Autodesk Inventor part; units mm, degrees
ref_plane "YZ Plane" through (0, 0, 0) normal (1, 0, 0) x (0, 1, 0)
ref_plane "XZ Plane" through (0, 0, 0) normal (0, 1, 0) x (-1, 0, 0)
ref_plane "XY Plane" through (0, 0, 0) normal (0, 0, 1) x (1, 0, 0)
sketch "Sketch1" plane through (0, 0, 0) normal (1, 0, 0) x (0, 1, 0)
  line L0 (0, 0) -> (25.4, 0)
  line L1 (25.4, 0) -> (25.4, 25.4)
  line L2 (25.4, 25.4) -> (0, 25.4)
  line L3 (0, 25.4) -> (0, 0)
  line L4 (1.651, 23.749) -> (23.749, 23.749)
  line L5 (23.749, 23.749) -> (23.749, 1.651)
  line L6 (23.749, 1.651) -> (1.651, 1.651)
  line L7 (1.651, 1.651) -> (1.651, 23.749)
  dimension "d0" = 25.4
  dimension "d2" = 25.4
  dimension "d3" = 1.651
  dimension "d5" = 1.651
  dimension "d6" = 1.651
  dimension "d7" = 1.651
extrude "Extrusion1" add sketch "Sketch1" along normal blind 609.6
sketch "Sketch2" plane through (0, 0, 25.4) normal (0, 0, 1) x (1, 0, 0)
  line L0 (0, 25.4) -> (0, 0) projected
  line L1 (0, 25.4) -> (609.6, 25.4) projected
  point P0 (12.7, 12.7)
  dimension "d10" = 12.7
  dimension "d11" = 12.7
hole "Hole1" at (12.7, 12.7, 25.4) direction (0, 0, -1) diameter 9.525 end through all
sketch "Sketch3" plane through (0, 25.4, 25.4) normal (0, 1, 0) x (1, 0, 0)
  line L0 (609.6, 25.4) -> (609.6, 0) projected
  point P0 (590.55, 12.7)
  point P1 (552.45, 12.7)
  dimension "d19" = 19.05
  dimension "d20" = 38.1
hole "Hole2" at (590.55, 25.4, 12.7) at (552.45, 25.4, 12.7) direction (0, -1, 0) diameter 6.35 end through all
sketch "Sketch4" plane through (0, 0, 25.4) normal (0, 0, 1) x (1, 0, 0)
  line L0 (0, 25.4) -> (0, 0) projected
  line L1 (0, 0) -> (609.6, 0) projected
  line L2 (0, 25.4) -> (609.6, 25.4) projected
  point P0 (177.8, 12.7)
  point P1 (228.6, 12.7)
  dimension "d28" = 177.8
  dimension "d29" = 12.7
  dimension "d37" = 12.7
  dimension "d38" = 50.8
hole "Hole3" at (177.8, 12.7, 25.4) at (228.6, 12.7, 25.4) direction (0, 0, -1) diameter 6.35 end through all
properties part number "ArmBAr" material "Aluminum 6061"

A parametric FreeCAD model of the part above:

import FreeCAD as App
import Part
import Sketcher
from FreeCAD import Vector
Q = App.Units.Quantity

doc = App.newDocument("Part")
params = doc.addObject("Spreadsheet::Sheet", "Params")
for row, (alias, value) in enumerate([
    ("sketch1_width", "1 in"),
    ("pad1_length", "24 in"),
    ("sketch2_diameter", "0.375 in"),
    ("hole_diameter", "0.375 in"),
    ("sketch3_diameter", "0.25 in"),
    ("hole2_diameter", "0.25 in"),
    ("sketch4_diameter", "0.25 in"),
    ("hole3_diameter", "0.25 in"),
], start=1):
    params.set(f"A{row}", alias)
    params.set(f"B{row}", "=" + value)
    params.setAlias(f"B{row}", alias)

body = doc.addObject("PartDesign::Body", "Body")

# Sketch on YZ plane
sketch1 = doc.addObject("Sketcher::SketchObject", "Sketch")
body.addObject(sketch1)
sketch1.AttachmentSupport = (doc.YZ_Plane, [""])
sketch1.MapMode = "FlatFace"
sketch1.addGeometry([
    Part.LineSegment(Vector(0, 25, 0), Vector(0, 0, 0)),  # 0
    Part.LineSegment(Vector(0, 0, 0), Vector(25, 0, 0)),  # 1
    Part.LineSegment(Vector(25, 0, 0), Vector(25, 25, 0)),  # 2
    Part.LineSegment(Vector(25, 25, 0), Vector(0, 25, 0)),  # 3
    Part.LineSegment(Vector(2, 2, 0), Vector(2, 24, 0)),  # 4
    Part.LineSegment(Vector(2, 24, 0), Vector(24, 24, 0)),  # 5
    Part.LineSegment(Vector(24, 24, 0), Vector(24, 2, 0)),  # 6
    Part.LineSegment(Vector(24, 2, 0), Vector(2, 2, 0)),  # 7
], False)
sketch1.addConstraint([
    Sketcher.Constraint("Coincident", 0, 2, 1, 1),
    Sketcher.Constraint("Coincident", 1, 2, 2, 1),
    Sketcher.Constraint("Coincident", 2, 2, 3, 1),
    Sketcher.Constraint("Coincident", 3, 2, 0, 1),
    Sketcher.Constraint("Coincident", 4, 2, 5, 1),
    Sketcher.Constraint("Coincident", 5, 2, 6, 1),
    Sketcher.Constraint("Coincident", 6, 2, 7, 1),
    Sketcher.Constraint("Coincident", 7, 2, 4, 1),
    Sketcher.Constraint("Vertical", 0),
    Sketcher.Constraint("Horizontal", 1),
    Sketcher.Constraint("Vertical", 2),
    Sketcher.Constraint("Horizontal", 3),
    Sketcher.Constraint("Vertical", 4),
    Sketcher.Constraint("Horizontal", 5),
    Sketcher.Constraint("Vertical", 6),
    Sketcher.Constraint("Horizontal", 7),
    Sketcher.Constraint("Coincident", 0, 2, -1, 1),
    Sketcher.Constraint("Equal", 3, 0),
    Sketcher.Constraint("Equal", 7, 4),
    Sketcher.Constraint("DistanceX", 1, 1, 1, 2, Q("1 in")),
    Sketcher.Constraint("DistanceX", -1, 1, 4, 2, Q("0.065 in")),
    Sketcher.Constraint("DistanceY", -1, 1, 6, 2, Q("0.065 in")),
    Sketcher.Constraint("DistanceY", 4, 2, 3, 2, Q("0.065 in")),
])
sketch1.setExpression("Constraints[19]", "Params.sketch1_width")
pad1 = doc.addObject("PartDesign::Pad", "Pad")
body.addObject(pad1)
pad1.Profile = sketch1
pad1.setExpression("Length", "Params.pad1_length")

# Sketch on XY plane
sketch2 = doc.addObject("Sketcher::SketchObject", "Sketch001")
body.addObject(sketch2)
sketch2.AttachmentSupport = (doc.XY_Plane, [""])
sketch2.MapMode = "FlatFace"
sketch2.AttachmentOffset = App.Placement(Vector(0, 0, 1 * 25.4), App.Rotation())
sketch2.addGeometry(Part.Circle(Vector(12.7, 12.7, 0), Vector(0, 0, 1), 4.8), False)
sketch2.addConstraint([
    Sketcher.Constraint("Diameter", 0, Q("0.375 in")),
    Sketcher.Constraint("DistanceX", -1, 1, 0, 3, Q("0.5 in")),
    Sketcher.Constraint("DistanceY", -1, 1, 0, 3, Q("0.5 in")),
])
sketch2.setExpression("Constraints[0]", "Params.sketch2_diameter")
doc.recompute()
hole = doc.addObject("PartDesign::Hole", "Hole")
body.addObject(hole)
hole.Profile = sketch2
hole.ThreadType = "None"
hole.setExpression("Diameter", "Params.hole_diameter")
hole.DepthType = "ThroughAll"

# Sketch on XZ plane
sketch3 = doc.addObject("Sketcher::SketchObject", "Sketch002")
body.addObject(sketch3)
sketch3.AttachmentSupport = (doc.XZ_Plane, [""])
sketch3.MapMode = "FlatFace"
sketch3.AttachmentOffset = App.Placement(Vector(0, 0, -1 * 25.4), App.Rotation())
sketch3.addGeometry([
    Part.Circle(Vector(590.5, 12.7, 0), Vector(0, 0, 1), 3.2),
    Part.Circle(Vector(552.5, 12.7, 0), Vector(0, 0, 1), 3.2),
], False)
sketch3.addConstraint([
    Sketcher.Constraint("Equal", 0, 1),
    Sketcher.Constraint("Horizontal", 0, 3, 1, 3),
    Sketcher.Constraint("Diameter", 0, Q("0.25 in")),
    Sketcher.Constraint("DistanceY", -1, 1, 0, 3, Q("0.5 in")),
    Sketcher.Constraint("DistanceX", 1, 3, 0, 3, Q("1.5 in")),
    Sketcher.Constraint("DistanceX", -1, 1, 0, 3, Q("23.25 in")),
])
sketch3.setExpression("Constraints[2]", "Params.sketch3_diameter")
doc.recompute()
hole2 = doc.addObject("PartDesign::Hole", "Hole001")
body.addObject(hole2)
hole2.Profile = sketch3
hole2.ThreadType = "None"
hole2.setExpression("Diameter", "Params.hole2_diameter")
hole2.DepthType = "ThroughAll"
hole2.Reversed = True

# Sketch on XY plane
sketch4 = doc.addObject("Sketcher::SketchObject", "Sketch003")
body.addObject(sketch4)
sketch4.AttachmentSupport = (doc.XY_Plane, [""])
sketch4.MapMode = "FlatFace"
sketch4.AttachmentOffset = App.Placement(Vector(0, 0, 1 * 25.4), App.Rotation())
sketch4.addGeometry([
    Part.Circle(Vector(177.8, 12.7, 0), Vector(0, 0, 1), 3.2),
    Part.Circle(Vector(228.6, 12.7, 0), Vector(0, 0, 1), 3.2),
], False)
sketch4.addConstraint([
    Sketcher.Constraint("Equal", 0, 1),
    Sketcher.Constraint("Horizontal", 0, 3, 1, 3),
    Sketcher.Constraint("Diameter", 0, Q("0.25 in")),
    Sketcher.Constraint("DistanceX", -1, 1, 0, 3, Q("7 in")),
    Sketcher.Constraint("DistanceX", -1, 1, 1, 3, Q("9 in")),
    Sketcher.Constraint("DistanceY", -1, 1, 0, 3, Q("0.5 in")),
])
sketch4.setExpression("Constraints[2]", "Params.sketch4_diameter")
doc.recompute()
hole3 = doc.addObject("PartDesign::Hole", "Hole002")
body.addObject(hole3)
hole3.Profile = sketch4
hole3.ThreadType = "None"
hole3.setExpression("Diameter", "Params.hole3_diameter")
hole3.DepthType = "ThroughAll"

doc.recompute()
